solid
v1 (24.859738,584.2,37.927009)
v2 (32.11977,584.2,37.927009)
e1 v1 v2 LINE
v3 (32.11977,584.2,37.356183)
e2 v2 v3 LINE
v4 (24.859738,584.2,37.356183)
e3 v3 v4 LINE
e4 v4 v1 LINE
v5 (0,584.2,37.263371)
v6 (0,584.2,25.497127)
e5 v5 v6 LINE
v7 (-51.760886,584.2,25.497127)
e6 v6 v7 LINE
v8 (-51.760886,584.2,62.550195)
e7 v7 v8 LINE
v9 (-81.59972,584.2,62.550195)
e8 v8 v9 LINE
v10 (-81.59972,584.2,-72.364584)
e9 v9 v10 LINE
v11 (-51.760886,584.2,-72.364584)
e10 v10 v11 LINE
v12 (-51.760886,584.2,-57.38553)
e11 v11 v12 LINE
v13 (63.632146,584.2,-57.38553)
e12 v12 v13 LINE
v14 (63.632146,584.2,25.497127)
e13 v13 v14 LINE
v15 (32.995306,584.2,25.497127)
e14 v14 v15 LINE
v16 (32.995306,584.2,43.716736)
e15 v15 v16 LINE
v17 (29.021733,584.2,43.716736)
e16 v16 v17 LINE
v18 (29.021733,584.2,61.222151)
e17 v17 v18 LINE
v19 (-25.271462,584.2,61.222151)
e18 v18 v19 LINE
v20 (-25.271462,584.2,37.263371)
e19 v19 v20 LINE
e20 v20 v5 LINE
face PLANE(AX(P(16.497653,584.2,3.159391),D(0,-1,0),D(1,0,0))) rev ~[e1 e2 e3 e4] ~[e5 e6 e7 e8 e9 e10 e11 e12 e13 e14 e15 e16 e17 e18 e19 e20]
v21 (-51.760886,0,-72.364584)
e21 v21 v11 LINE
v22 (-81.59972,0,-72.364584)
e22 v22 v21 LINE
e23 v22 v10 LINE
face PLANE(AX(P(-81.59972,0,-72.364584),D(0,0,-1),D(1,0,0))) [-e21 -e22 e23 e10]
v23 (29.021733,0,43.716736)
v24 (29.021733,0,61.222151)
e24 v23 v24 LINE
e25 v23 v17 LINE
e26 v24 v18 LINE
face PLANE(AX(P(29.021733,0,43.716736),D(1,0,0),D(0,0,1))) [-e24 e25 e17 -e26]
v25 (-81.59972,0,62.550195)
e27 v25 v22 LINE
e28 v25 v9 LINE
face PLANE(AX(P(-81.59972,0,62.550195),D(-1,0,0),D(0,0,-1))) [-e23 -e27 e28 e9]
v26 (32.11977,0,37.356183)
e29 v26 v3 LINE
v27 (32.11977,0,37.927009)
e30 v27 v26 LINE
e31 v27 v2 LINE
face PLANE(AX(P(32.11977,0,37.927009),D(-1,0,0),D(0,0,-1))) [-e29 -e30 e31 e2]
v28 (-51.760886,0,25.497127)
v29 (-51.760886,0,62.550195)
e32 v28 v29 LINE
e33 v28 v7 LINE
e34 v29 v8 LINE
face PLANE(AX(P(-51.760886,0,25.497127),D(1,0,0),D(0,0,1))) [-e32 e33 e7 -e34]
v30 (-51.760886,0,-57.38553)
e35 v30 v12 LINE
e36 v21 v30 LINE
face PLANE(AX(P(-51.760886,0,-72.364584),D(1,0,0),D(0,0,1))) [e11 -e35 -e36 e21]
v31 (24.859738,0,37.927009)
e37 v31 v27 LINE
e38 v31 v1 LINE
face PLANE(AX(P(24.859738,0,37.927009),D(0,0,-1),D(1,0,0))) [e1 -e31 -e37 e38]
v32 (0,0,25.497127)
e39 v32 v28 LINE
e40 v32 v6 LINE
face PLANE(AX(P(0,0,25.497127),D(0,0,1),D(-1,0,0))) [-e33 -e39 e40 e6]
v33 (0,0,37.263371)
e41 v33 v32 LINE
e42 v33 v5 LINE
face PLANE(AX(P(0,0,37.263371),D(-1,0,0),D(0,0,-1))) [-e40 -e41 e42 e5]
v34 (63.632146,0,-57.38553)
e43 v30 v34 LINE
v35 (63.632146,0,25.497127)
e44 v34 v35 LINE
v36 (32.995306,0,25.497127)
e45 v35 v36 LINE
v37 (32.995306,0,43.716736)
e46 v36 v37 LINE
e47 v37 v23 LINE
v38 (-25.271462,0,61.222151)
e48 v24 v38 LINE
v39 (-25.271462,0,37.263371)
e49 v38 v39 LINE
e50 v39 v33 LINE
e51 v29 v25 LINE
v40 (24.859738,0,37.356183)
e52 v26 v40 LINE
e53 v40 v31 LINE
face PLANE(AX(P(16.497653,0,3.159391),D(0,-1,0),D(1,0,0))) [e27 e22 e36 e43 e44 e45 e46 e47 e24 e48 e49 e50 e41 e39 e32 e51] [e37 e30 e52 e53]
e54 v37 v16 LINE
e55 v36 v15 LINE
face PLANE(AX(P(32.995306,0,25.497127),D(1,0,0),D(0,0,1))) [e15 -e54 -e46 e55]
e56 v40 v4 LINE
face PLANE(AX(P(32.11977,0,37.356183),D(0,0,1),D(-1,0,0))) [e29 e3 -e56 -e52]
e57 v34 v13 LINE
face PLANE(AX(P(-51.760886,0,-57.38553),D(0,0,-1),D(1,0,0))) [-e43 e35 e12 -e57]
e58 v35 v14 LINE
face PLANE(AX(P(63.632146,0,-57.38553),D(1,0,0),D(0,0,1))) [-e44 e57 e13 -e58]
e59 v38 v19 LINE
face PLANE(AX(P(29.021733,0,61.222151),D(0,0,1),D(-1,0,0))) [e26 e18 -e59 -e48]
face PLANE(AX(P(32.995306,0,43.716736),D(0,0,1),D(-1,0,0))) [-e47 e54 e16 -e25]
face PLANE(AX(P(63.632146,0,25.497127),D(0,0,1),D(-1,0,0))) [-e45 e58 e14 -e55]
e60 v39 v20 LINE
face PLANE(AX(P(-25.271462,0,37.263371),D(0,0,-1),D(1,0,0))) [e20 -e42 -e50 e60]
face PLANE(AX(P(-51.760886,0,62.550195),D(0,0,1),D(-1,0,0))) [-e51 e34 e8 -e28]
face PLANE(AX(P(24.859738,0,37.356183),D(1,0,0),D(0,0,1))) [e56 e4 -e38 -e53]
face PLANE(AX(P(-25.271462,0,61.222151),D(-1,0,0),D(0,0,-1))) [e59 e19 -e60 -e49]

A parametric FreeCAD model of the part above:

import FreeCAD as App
import Part
import Sketcher
Q = App.Units.Quantity

doc = App.newDocument("Part")
body = doc.addObject("PartDesign::Body", "Body")

# Sketch on XZ plane
sketch1 = body.newObject("Sketcher::SketchObject", "Sketch")
sketch1.AttachmentSupport = (doc.getObject("XZ_Plane"), [""])
sketch1.MapMode = "FlatFace"
sketch1.addGeometry([
    Part.LineSegment(App.Vector(33, 25.5, 0), App.Vector(33, 43.7, 0)),  # 0
    Part.LineSegment(App.Vector(33, 43.7, 0), App.Vector(29, 43.7, 0)),  # 1
    Part.LineSegment(App.Vector(29, 43.7, 0), App.Vector(29, 61.2, 0)),  # 2
    Part.LineSegment(App.Vector(29, 61.2, 0), App.Vector(-25.3, 61.2, 0)),  # 3
    Part.LineSegment(App.Vector(-25.3, 61.2, 0), App.Vector(-25.3, 37.3, 0)),  # 4
    Part.LineSegment(App.Vector(-25.3, 37.3, 0), App.Vector(0, 37.3, 0)),  # 5
    Part.LineSegment(App.Vector(0, 37.3, 0), App.Vector(0, 25.5, 0)),  # 6
    Part.LineSegment(App.Vector(0, 25.5, 0), App.Vector(-51.8, 25.5, 0)),  # 7
    Part.LineSegment(App.Vector(-51.8, 25.5, 0), App.Vector(-51.8, 62.6, 0)),  # 8
    Part.LineSegment(App.Vector(-51.8, 62.6, 0), App.Vector(-81.6, 62.6, 0)),  # 9
    Part.LineSegment(App.Vector(-81.6, 62.6, 0), App.Vector(-81.6, -72.4, 0)),  # 10
    Part.LineSegment(App.Vector(-81.6, -72.4, 0), App.Vector(-51.8, -72.4, 0)),  # 11
    Part.LineSegment(App.Vector(-51.8, -72.4, 0), App.Vector(-51.8, -57.4, 0)),  # 12
    Part.LineSegment(App.Vector(-51.8, -57.4, 0), App.Vector(63.6, -57.4, 0)),  # 13
    Part.LineSegment(App.Vector(63.6, -57.4, 0), App.Vector(63.6, 25.5, 0)),  # 14
    Part.LineSegment(App.Vector(63.6, 25.5, 0), App.Vector(33, 25.5, 0)),  # 15
    Part.LineSegment(App.Vector(32.1, 37.9, 0), App.Vector(32.1, 37.4, 0)),  # 16
    Part.LineSegment(App.Vector(32.1, 37.4, 0), App.Vector(24.9, 37.4, 0)),  # 17
    Part.LineSegment(App.Vector(24.9, 37.4, 0), App.Vector(24.9, 37.9, 0)),  # 18
    Part.LineSegment(App.Vector(24.9, 37.9, 0), App.Vector(32.1, 37.9, 0)),  # 19
], False)
sketch1.addConstraint([
    Sketcher.Constraint("Coincident", 0, 2, 1, 1),
    Sketcher.Constraint("Coincident", 1, 2, 2, 1),
    Sketcher.Constraint("Coincident", 2, 2, 3, 1),
    Sketcher.Constraint("Coincident", 3, 2, 4, 1),
    Sketcher.Constraint("Coincident", 4, 2, 5, 1),
    Sketcher.Constraint("Coincident", 5, 2, 6, 1),
    Sketcher.Constraint("Coincident", 6, 2, 7, 1),
    Sketcher.Constraint("Coincident", 7, 2, 8, 1),
    Sketcher.Constraint("Coincident", 8, 2, 9, 1),
    Sketcher.Constraint("Coincident", 9, 2, 10, 1),
    Sketcher.Constraint("Coincident", 10, 2, 11, 1),
    Sketcher.Constraint("Coincident", 11, 2, 12, 1),
    Sketcher.Constraint("Coincident", 12, 2, 13, 1),
    Sketcher.Constraint("Coincident", 13, 2, 14, 1),
    Sketcher.Constraint("Coincident", 14, 2, 15, 1),
    Sketcher.Constraint("Coincident", 15, 2, 0, 1),
    Sketcher.Constraint("Coincident", 16, 2, 17, 1),
    Sketcher.Constraint("Coincident", 17, 2, 18, 1),
    Sketcher.Constraint("Coincident", 18, 2, 19, 1),
    Sketcher.Constraint("Coincident", 19, 2, 16, 1),
    Sketcher.Constraint("Vertical", 0),
    Sketcher.Constraint("Horizontal", 1),
    Sketcher.Constraint("Vertical", 2),
    Sketcher.Constraint("Horizontal", 3),
    Sketcher.Constraint("Vertical", 4),
    Sketcher.Constraint("Horizontal", 5),
    Sketcher.Constraint("Vertical", 6),
    Sketcher.Constraint("Horizontal", 7),
    Sketcher.Constraint("Vertical", 8),
    Sketcher.Constraint("Horizontal", 9),
    Sketcher.Constraint("Vertical", 10),
    Sketcher.Constraint("Horizontal", 11),
    Sketcher.Constraint("Vertical", 12),
    Sketcher.Constraint("Horizontal", 13),
    Sketcher.Constraint("Vertical", 14),
    Sketcher.Constraint("Horizontal", 15),
    Sketcher.Constraint("Vertical", 16),
    Sketcher.Constraint("Horizontal", 17),
    Sketcher.Constraint("Vertical", 18),
    Sketcher.Constraint("Horizontal", 19),
    Sketcher.Constraint("PointOnObject", 5, 2, -2),
    Sketcher.Constraint("Horizontal", 7, 2, 14, 2),
    Sketcher.Constraint("Vertical", 8, 2, 11, 2),
    Sketcher.Constraint("DistanceX", 13, 1, 13, 2, 115.393031),
    Sketcher.Constraint("DistanceX", 15, 2, 15, 1, 30.63684),
    Sketcher.Constraint("DistanceX", 17, 2, 17, 1, 7.260032),
    Sketcher.Constraint("DistanceY", 0, 1, 0, 2, 18.219609),
    Sketcher.Constraint("DistanceY", 4, 2, 4, 1, 23.95878),
    Sketcher.Constraint("DistanceY", 10, 2, 10, 1, 134.914778),
    Sketcher.Constraint("DistanceY", 12, 2, 4, 2, 94.648901),
    Sketcher.Constraint("DistanceX", 1, 2, 1, 1, 3.973573),
    Sketcher.Constraint("DistanceX", 3, 2, 3, 1, 54.293195),
    Sketcher.Constraint("DistanceX", 5, 1, 5, 2, 25.271462),
    Sketcher.Constraint("DistanceX", 9, 2, 9, 1, 29.838834),
    Sketcher.Constraint("DistanceY", 2, 1, 2, 2, 17.505415),
    Sketcher.Constraint("DistanceY", 8, 1, 8, 2, 37.053067),
    Sketcher.Constraint("DistanceY", 16, 2, 16, 1, 0.570826),
    Sketcher.Constraint("DistanceY", -1, 1, 2, 2, 61.222151),
    Sketcher.Constraint("DistanceX", -1, 1, 16, 2, 32.11977),
    Sketcher.Constraint("DistanceY", -1, 1, 18, 2, 37.927009),
])
pad1 = body.newObject("PartDesign::Pad", "Pad")
pad1.Profile = sketch1
pad1.Length = Q("23 in")
pad1.Reversed = True

doc.recompute()
